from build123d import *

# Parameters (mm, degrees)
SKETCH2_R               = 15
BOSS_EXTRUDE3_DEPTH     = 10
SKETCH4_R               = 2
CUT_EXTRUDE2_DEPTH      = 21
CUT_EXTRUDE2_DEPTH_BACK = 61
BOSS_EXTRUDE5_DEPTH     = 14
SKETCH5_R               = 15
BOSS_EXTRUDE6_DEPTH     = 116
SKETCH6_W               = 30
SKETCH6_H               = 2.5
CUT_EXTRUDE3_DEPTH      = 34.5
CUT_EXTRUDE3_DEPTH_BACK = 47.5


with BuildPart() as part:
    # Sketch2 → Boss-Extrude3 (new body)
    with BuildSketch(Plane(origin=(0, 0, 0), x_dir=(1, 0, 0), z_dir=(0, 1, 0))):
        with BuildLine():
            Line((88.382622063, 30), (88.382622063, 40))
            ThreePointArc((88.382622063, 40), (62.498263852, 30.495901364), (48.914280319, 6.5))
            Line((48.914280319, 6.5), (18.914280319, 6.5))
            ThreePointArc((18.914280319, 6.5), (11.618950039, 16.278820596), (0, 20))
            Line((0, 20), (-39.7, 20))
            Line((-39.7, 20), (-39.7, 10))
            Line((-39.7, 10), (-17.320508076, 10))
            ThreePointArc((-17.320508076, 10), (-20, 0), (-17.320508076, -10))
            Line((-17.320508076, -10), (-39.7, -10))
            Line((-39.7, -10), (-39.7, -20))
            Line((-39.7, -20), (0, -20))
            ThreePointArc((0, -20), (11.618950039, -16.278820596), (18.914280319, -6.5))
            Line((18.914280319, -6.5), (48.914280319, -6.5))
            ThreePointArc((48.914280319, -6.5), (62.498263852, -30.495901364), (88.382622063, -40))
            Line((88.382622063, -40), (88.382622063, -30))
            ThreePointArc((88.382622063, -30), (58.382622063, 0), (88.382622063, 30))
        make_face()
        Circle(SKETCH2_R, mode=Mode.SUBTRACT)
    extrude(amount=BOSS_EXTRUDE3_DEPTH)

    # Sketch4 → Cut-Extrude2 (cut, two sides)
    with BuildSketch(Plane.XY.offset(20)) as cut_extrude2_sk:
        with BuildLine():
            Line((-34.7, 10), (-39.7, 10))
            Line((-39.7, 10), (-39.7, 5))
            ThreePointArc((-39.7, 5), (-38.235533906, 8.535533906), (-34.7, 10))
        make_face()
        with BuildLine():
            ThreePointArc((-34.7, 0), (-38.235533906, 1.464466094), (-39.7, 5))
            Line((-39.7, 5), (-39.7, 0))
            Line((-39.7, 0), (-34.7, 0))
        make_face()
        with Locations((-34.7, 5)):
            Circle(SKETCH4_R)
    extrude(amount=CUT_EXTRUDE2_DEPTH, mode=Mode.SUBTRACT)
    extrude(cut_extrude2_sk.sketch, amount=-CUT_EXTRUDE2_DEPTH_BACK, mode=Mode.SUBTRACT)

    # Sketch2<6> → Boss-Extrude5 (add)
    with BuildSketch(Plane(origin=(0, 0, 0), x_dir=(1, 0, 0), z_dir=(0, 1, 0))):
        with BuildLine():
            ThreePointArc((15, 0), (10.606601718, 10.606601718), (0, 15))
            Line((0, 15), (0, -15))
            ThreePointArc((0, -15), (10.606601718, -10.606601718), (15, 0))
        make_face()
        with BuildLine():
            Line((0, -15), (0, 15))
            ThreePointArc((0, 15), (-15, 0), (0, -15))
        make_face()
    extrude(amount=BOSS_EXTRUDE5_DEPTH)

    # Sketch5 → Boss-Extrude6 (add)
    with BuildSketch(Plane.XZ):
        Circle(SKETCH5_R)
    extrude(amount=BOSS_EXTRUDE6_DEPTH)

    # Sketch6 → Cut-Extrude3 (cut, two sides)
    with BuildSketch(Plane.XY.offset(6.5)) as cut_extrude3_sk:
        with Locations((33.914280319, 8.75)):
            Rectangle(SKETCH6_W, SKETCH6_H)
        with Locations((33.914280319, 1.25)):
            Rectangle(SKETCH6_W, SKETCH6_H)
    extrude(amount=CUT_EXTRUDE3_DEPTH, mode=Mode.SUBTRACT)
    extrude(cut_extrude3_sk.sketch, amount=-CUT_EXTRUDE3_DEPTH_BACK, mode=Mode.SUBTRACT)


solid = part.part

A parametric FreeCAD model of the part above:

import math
import FreeCAD as App
import Part
import Sketcher
Q = App.Units.Quantity


def add_polygon(sketch, points):
    """Adds a closed chain of lines whose ends are joined by coincident constraints."""
    first, n = sketch.GeometryCount, len(points)
    for a, b in zip(points, points[1:] + points[:1]):
        sketch.addGeometry(Part.LineSegment(App.Vector(*a, 0), App.Vector(*b, 0)), False)
    for i in range(n):
        sketch.addConstraint(Sketcher.Constraint("Coincident", first + i, 2, first + (i + 1) % n, 1))

doc = App.newDocument("Part")
body = doc.addObject("PartDesign::Body", "Body")

# Sketch on XZ plane
sketch1 = body.newObject("Sketcher::SketchObject", "Sketch")
sketch1.AttachmentSupport = (doc.getObject("XZ_Plane"), [""])
sketch1.MapMode = "FlatFace"
sketch1.addGeometry(Part.LineSegment(App.Vector(88.382622, -30, 0), App.Vector(88.382622, -40, 0)), False)
sketch1.addGeometry(Part.ArcOfCircle(Part.Circle(App.Vector(88.382622, 0, 0), App.Vector(0, 0, 1), 40), math.radians(-170.647965), math.radians(-90)), False)
sketch1.addGeometry(Part.LineSegment(App.Vector(48.91428, -6.5, 0), App.Vector(18.91428, -6.5, 0)), False)
sketch1.addGeometry(Part.ArcOfCircle(Part.Circle(App.Vector(0, 0, 0), App.Vector(0, 0, 1), 20), math.radians(-90), math.radians(-18.965575)), False)
sketch1.addGeometry(Part.LineSegment(App.Vector(0, -20, 0), App.Vector(-39.7, -20, 0)), False)
sketch1.addGeometry(Part.LineSegment(App.Vector(-39.7, -20, 0), App.Vector(-39.7, -10, 0)), False)
sketch1.addGeometry(Part.LineSegment(App.Vector(-39.7, -10, 0), App.Vector(-17.320508, -10, 0)), False)
sketch1.addGeometry(Part.ArcOfCircle(Part.Circle(App.Vector(0, 0, 0), App.Vector(0, 0, 1), 20), math.radians(150), math.radians(210)), False)
sketch1.addGeometry(Part.LineSegment(App.Vector(-17.320508, 10, 0), App.Vector(-39.7, 10, 0)), False)
sketch1.addGeometry(Part.LineSegment(App.Vector(-39.7, 10, 0), App.Vector(-39.7, 20, 0)), False)
sketch1.addGeometry(Part.LineSegment(App.Vector(-39.7, 20, 0), App.Vector(0, 20, 0)), False)
sketch1.addGeometry(Part.ArcOfCircle(Part.Circle(App.Vector(0, 0, 0), App.Vector(0, 0, 1), 20), math.radians(18.965575), math.radians(90)), False)
sketch1.addGeometry(Part.LineSegment(App.Vector(18.91428, 6.5, 0), App.Vector(48.91428, 6.5, 0)), False)
sketch1.addGeometry(Part.ArcOfCircle(Part.Circle(App.Vector(88.382622, 0, 0), App.Vector(0, 0, 1), 40), math.radians(90), math.radians(170.647965)), False)
sketch1.addGeometry(Part.LineSegment(App.Vector(88.382622, 40, 0), App.Vector(88.382622, 30, 0)), False)
sketch1.addGeometry(Part.ArcOfCircle(Part.Circle(App.Vector(88.382622, 0, 0), App.Vector(0, 0, 1), 30), math.radians(90), math.radians(270)), False)
sketch1.addGeometry(Part.Circle(App.Vector(0, 0, 0), App.Vector(0, 0, 1), 15), False)
sketch1.addConstraint(Sketcher.Constraint("Coincident", 0, 2, 1, 2))
sketch1.addConstraint(Sketcher.Constraint("Coincident", 1, 1, 2, 1))
sketch1.addConstraint(Sketcher.Constraint("Coincident", 2, 2, 3, 2))
sketch1.addConstraint(Sketcher.Constraint("Tangent", 3, 1, 4, 1))
sketch1.addConstraint(Sketcher.Constraint("Coincident", 4, 2, 5, 1))
sketch1.addConstraint(Sketcher.Constraint("Coincident", 5, 2, 6, 1))
sketch1.addConstraint(Sketcher.Constraint("Coincident", 6, 2, 7, 2))
sketch1.addConstraint(Sketcher.Constraint("Coincident", 7, 1, 8, 1))
sketch1.addConstraint(Sketcher.Constraint("Coincident", 8, 2, 9, 1))
sketch1.addConstraint(Sketcher.Constraint("Coincident", 9, 2, 10, 1))
sketch1.addConstraint(Sketcher.Constraint("Tangent", 10, 2, 11, 2))
sketch1.addConstraint(Sketcher.Constraint("Coincident", 11, 1, 12, 1))
sketch1.addConstraint(Sketcher.Constraint("Coincident", 12, 2, 13, 2))
sketch1.addConstraint(Sketcher.Constraint("Coincident", 13, 1, 14, 1))
sketch1.addConstraint(Sketcher.Constraint("Coincident", 14, 2, 15, 1))
sketch1.addConstraint(Sketcher.Constraint("Coincident", 15, 2, 0, 1))
sketch1.addConstraint(Sketcher.Constraint("Vertical", 0))
sketch1.addConstraint(Sketcher.Constraint("Horizontal", 2))
sketch1.addConstraint(Sketcher.Constraint("Horizontal", 4))
sketch1.addConstraint(Sketcher.Constraint("Vertical", 5))
sketch1.addConstraint(Sketcher.Constraint("Horizontal", 6))
sketch1.addConstraint(Sketcher.Constraint("Horizontal", 8))
sketch1.addConstraint(Sketcher.Constraint("Vertical", 9))
sketch1.addConstraint(Sketcher.Constraint("Horizontal", 10))
sketch1.addConstraint(Sketcher.Constraint("Horizontal", 12))
sketch1.addConstraint(Sketcher.Constraint("Vertical", 14))
sketch1.addConstraint(Sketcher.Constraint("Coincident", 3, 3, -1, 1))
sketch1.addConstraint(Sketcher.Constraint("Coincident", 7, 3, -1, 1))
sketch1.addConstraint(Sketcher.Constraint("Coincident", 11, 3, -1, 1))
sketch1.addConstraint(Sketcher.Constraint("Coincident", 16, 3, -1, 1))
sketch1.addConstraint(Sketcher.Constraint("Coincident", 13, 3, 1, 3))
sketch1.addConstraint(Sketcher.Constraint("Coincident", 15, 3, 1, 3))
sketch1.addConstraint(Sketcher.Constraint("Equal", 3, 7))
sketch1.addConstraint(Sketcher.Constraint("Equal", 7, 11))
sketch1.addConstraint(Sketcher.Constraint("Equal", 1, 13))
sketch1.addConstraint(Sketcher.Constraint("Symmetric", 5, 2, 8, 2, -1))
sketch1.addConstraint(Sketcher.Constraint("Symmetric", 1, 1, 12, 2, -1))
sketch1.addConstraint(Sketcher.Constraint("Vertical", 15, 3, 0, 2))
sketch1.addConstraint(Sketcher.Constraint("Vertical", 0, 2, 13, 1))
sketch1.addConstraint(Sketcher.Constraint("Equal", 0, 5))
sketch1.addConstraint(Sketcher.Constraint("Diameter", 16, Q("30 mm")))
sketch1.addConstraint(Sketcher.Constraint("Radius", 1, Q("40 mm")))
sketch1.addConstraint(Sketcher.Constraint("Radius", 3, Q("20 mm")))
sketch1.addConstraint(Sketcher.Constraint("Radius", 15, Q("30 mm")))
sketch1.addConstraint(Sketcher.Constraint("DistanceX", 2, 2, 2, 1, Q("30 mm")))
sketch1.addConstraint(Sketcher.Constraint("DistanceX", 4, 2, 4, 1, Q("39.7 mm")))
sketch1.addConstraint(Sketcher.Constraint("DistanceY", 2, 2, 11, 1, Q("13 mm")))
pad1 = body.newObject("PartDesign::Pad", "Pad")
pad1.Profile = sketch1
pad1.Length = 10
pad1.Reversed = True

# Sketch on XY plane
sketch2 = body.newObject("Sketcher::SketchObject", "Sketch001")
sketch2.AttachmentSupport = (doc.getObject("XY_Plane"), [""])
sketch2.MapMode = "FlatFace"
sketch2.AttachmentOffset = App.Placement(App.Vector(0, 0, 20), App.Rotation())
sketch2.addGeometry(Part.LineSegment(App.Vector(-34.7, 10, 0), App.Vector(-39.7, 10, 0)), False)
sketch2.addGeometry(Part.LineSegment(App.Vector(-39.7, 10, 0), App.Vector(-39.7, 5, 0)), False)
sketch2.addGeometry(Part.ArcOfCircle(Part.Circle(App.Vector(-34.7, 5, 0), App.Vector(0, 0, 1), 5), math.radians(90), math.radians(180)), False)
sketch2.addGeometry(Part.ArcOfCircle(Part.Circle(App.Vector(-34.7, 5, 0), App.Vector(0, 0, 1), 5), math.radians(180), math.radians(270)), False)
sketch2.addGeometry(Part.LineSegment(App.Vector(-39.7, 5, 0), App.Vector(-39.7, 0, 0)), False)
sketch2.addGeometry(Part.LineSegment(App.Vector(-39.7, 0, 0), App.Vector(-34.7, 0, 0)), False)
sketch2.addGeometry(Part.Circle(App.Vector(-34.7, 5, 0), App.Vector(0, 0, 1), 2), False)
sketch2.addConstraint(Sketcher.Constraint("Coincident", 0, 2, 1, 1))
sketch2.addConstraint(Sketcher.Constraint("Tangent", 1, 2, 2, 2))
sketch2.addConstraint(Sketcher.Constraint("Tangent", 2, 1, 0, 1))
sketch2.addConstraint(Sketcher.Constraint("Tangent", 3, 1, 4, 1))
sketch2.addConstraint(Sketcher.Constraint("Coincident", 4, 2, 5, 1))
sketch2.addConstraint(Sketcher.Constraint("Tangent", 5, 2, 3, 2))
sketch2.addConstraint(Sketcher.Constraint("Horizontal", 0))
sketch2.addConstraint(Sketcher.Constraint("Vertical", 1))
sketch2.addConstraint(Sketcher.Constraint("Vertical", 4))
sketch2.addConstraint(Sketcher.Constraint("Horizontal", 5))
sketch2.addConstraint(Sketcher.Constraint("Coincident", 3, 3, 2, 3))
sketch2.addConstraint(Sketcher.Constraint("Coincident", 6, 3, 2, 3))
sketch2.addConstraint(Sketcher.Constraint("Equal", 2, 3))
sketch2.addConstraint(Sketcher.Constraint("PointOnObject", 4, 2, -1))
sketch2.addConstraint(Sketcher.Constraint("Diameter", 6, Q("4 mm")))
sketch2.addConstraint(Sketcher.Constraint("Radius", 2, Q("5 mm")))
sketch2.addConstraint(Sketcher.Constraint("DistanceX", 2, 3, -1, 1, Q("34.7 mm")))
pocket1 = body.newObject("PartDesign::Pocket", "Pocket")
pocket1.Profile = sketch2
pocket1.Type = "ThroughAll"
pocket1.Midplane = True

# Sketch on XZ plane
sketch3 = body.newObject("Sketcher::SketchObject", "Sketch002")
sketch3.AttachmentSupport = (doc.getObject("XZ_Plane"), [""])
sketch3.MapMode = "FlatFace"
sketch3.addGeometry(Part.ArcOfCircle(Part.Circle(App.Vector(0, 0, 0), App.Vector(0, 0, 1), 15), math.radians(-90), math.radians(0)), False)
sketch3.addGeometry(Part.ArcOfCircle(Part.Circle(App.Vector(0, 0, 0), App.Vector(0, 0, 1), 15), math.radians(90), math.radians(270)), False)
sketch3.addGeometry(Part.ArcOfCircle(Part.Circle(App.Vector(0, 0, 0), App.Vector(0, 0, 1), 15), math.radians(0), math.radians(90)), False)
sketch3.addConstraint(Sketcher.Constraint("Tangent", 0, 1, 1, 2))
sketch3.addConstraint(Sketcher.Constraint("Tangent", 1, 1, 2, 2))
sketch3.addConstraint(Sketcher.Constraint("Tangent", 2, 1, 0, 2))
sketch3.addConstraint(Sketcher.Constraint("Coincident", 0, 3, -1, 1))
sketch3.addConstraint(Sketcher.Constraint("PointOnObject", 0, 1, -2))
sketch3.addConstraint(Sketcher.Constraint("PointOnObject", 1, 1, -2))
sketch3.addConstraint(Sketcher.Constraint("PointOnObject", 2, 1, -1))
sketch3.addConstraint(Sketcher.Constraint("Radius", 0, Q("15 mm")))
pad2 = body.newObject("PartDesign::Pad", "Pad001")
pad2.Profile = sketch3
pad2.Length = 14
pad2.Reversed = True

# Sketch on XZ plane
sketch4 = body.newObject("Sketcher::SketchObject", "Sketch003")
sketch4.AttachmentSupport = (doc.getObject("XZ_Plane"), [""])
sketch4.MapMode = "FlatFace"
sketch4.addGeometry(Part.Circle(App.Vector(0, 0, 0), App.Vector(0, 0, 1), 15), False)
sketch4.addConstraint(Sketcher.Constraint("Coincident", 0, 3, -1, 1))
sketch4.addConstraint(Sketcher.Constraint("Diameter", 0, Q("30 mm")))
pad3 = body.newObject("PartDesign::Pad", "Pad002")
pad3.Profile = sketch4
pad3.Length = 116

# Sketch on XY plane
sketch5 = body.newObject("Sketcher::SketchObject", "Sketch004")
sketch5.AttachmentSupport = (doc.getObject("XY_Plane"), [""])
sketch5.MapMode = "FlatFace"
sketch5.AttachmentOffset = App.Placement(App.Vector(0, 0, 6.5), App.Rotation())
add_polygon(sketch5, [(18.91428, 10), (18.91428, 7.5), (48.91428, 7.5), (48.91428, 10)])  # lines 0-3
add_polygon(sketch5, [(18.91428, 2.5), (18.91428, 0), (48.91428, 0), (48.91428, 2.5)])  # lines 4-7
sketch5.addConstraint(Sketcher.Constraint("Vertical", 0))
sketch5.addConstraint(Sketcher.Constraint("Horizontal", 1))
sketch5.addConstraint(Sketcher.Constraint("Vertical", 2))
sketch5.addConstraint(Sketcher.Constraint("Horizontal", 3))
sketch5.addConstraint(Sketcher.Constraint("Vertical", 4))
sketch5.addConstraint(Sketcher.Constraint("Horizontal", 5))
sketch5.addConstraint(Sketcher.Constraint("Vertical", 6))
sketch5.addConstraint(Sketcher.Constraint("Horizontal", 7))
sketch5.addConstraint(Sketcher.Constraint("PointOnObject", 4, 2, -1))
sketch5.addConstraint(Sketcher.Constraint("Vertical", 3, 2, 4, 2))
sketch5.addConstraint(Sketcher.Constraint("Vertical", 2, 2, 5, 2))
sketch5.addConstraint(Sketcher.Constraint("Equal", 2, 4))
sketch5.addConstraint(Sketcher.Constraint("DistanceX", 1, 1, 1, 2, Q("30 mm")))
sketch5.addConstraint(Sketcher.Constraint("DistanceY", 0, 2, 0, 1, Q("2.5 mm")))
sketch5.addConstraint(Sketcher.Constraint("DistanceY", -1, 1, 2, 2, Q("10 mm")))
sketch5.addConstraint(Sketcher.Constraint("DistanceX", -1, 1, 0, 2, Q("18.91428 mm")))
pocket2 = body.newObject("PartDesign::Pocket", "Pocket001")
pocket2.Profile = sketch5
pocket2.Type = "ThroughAll"
pocket2.Midplane = True

doc.recompute()
